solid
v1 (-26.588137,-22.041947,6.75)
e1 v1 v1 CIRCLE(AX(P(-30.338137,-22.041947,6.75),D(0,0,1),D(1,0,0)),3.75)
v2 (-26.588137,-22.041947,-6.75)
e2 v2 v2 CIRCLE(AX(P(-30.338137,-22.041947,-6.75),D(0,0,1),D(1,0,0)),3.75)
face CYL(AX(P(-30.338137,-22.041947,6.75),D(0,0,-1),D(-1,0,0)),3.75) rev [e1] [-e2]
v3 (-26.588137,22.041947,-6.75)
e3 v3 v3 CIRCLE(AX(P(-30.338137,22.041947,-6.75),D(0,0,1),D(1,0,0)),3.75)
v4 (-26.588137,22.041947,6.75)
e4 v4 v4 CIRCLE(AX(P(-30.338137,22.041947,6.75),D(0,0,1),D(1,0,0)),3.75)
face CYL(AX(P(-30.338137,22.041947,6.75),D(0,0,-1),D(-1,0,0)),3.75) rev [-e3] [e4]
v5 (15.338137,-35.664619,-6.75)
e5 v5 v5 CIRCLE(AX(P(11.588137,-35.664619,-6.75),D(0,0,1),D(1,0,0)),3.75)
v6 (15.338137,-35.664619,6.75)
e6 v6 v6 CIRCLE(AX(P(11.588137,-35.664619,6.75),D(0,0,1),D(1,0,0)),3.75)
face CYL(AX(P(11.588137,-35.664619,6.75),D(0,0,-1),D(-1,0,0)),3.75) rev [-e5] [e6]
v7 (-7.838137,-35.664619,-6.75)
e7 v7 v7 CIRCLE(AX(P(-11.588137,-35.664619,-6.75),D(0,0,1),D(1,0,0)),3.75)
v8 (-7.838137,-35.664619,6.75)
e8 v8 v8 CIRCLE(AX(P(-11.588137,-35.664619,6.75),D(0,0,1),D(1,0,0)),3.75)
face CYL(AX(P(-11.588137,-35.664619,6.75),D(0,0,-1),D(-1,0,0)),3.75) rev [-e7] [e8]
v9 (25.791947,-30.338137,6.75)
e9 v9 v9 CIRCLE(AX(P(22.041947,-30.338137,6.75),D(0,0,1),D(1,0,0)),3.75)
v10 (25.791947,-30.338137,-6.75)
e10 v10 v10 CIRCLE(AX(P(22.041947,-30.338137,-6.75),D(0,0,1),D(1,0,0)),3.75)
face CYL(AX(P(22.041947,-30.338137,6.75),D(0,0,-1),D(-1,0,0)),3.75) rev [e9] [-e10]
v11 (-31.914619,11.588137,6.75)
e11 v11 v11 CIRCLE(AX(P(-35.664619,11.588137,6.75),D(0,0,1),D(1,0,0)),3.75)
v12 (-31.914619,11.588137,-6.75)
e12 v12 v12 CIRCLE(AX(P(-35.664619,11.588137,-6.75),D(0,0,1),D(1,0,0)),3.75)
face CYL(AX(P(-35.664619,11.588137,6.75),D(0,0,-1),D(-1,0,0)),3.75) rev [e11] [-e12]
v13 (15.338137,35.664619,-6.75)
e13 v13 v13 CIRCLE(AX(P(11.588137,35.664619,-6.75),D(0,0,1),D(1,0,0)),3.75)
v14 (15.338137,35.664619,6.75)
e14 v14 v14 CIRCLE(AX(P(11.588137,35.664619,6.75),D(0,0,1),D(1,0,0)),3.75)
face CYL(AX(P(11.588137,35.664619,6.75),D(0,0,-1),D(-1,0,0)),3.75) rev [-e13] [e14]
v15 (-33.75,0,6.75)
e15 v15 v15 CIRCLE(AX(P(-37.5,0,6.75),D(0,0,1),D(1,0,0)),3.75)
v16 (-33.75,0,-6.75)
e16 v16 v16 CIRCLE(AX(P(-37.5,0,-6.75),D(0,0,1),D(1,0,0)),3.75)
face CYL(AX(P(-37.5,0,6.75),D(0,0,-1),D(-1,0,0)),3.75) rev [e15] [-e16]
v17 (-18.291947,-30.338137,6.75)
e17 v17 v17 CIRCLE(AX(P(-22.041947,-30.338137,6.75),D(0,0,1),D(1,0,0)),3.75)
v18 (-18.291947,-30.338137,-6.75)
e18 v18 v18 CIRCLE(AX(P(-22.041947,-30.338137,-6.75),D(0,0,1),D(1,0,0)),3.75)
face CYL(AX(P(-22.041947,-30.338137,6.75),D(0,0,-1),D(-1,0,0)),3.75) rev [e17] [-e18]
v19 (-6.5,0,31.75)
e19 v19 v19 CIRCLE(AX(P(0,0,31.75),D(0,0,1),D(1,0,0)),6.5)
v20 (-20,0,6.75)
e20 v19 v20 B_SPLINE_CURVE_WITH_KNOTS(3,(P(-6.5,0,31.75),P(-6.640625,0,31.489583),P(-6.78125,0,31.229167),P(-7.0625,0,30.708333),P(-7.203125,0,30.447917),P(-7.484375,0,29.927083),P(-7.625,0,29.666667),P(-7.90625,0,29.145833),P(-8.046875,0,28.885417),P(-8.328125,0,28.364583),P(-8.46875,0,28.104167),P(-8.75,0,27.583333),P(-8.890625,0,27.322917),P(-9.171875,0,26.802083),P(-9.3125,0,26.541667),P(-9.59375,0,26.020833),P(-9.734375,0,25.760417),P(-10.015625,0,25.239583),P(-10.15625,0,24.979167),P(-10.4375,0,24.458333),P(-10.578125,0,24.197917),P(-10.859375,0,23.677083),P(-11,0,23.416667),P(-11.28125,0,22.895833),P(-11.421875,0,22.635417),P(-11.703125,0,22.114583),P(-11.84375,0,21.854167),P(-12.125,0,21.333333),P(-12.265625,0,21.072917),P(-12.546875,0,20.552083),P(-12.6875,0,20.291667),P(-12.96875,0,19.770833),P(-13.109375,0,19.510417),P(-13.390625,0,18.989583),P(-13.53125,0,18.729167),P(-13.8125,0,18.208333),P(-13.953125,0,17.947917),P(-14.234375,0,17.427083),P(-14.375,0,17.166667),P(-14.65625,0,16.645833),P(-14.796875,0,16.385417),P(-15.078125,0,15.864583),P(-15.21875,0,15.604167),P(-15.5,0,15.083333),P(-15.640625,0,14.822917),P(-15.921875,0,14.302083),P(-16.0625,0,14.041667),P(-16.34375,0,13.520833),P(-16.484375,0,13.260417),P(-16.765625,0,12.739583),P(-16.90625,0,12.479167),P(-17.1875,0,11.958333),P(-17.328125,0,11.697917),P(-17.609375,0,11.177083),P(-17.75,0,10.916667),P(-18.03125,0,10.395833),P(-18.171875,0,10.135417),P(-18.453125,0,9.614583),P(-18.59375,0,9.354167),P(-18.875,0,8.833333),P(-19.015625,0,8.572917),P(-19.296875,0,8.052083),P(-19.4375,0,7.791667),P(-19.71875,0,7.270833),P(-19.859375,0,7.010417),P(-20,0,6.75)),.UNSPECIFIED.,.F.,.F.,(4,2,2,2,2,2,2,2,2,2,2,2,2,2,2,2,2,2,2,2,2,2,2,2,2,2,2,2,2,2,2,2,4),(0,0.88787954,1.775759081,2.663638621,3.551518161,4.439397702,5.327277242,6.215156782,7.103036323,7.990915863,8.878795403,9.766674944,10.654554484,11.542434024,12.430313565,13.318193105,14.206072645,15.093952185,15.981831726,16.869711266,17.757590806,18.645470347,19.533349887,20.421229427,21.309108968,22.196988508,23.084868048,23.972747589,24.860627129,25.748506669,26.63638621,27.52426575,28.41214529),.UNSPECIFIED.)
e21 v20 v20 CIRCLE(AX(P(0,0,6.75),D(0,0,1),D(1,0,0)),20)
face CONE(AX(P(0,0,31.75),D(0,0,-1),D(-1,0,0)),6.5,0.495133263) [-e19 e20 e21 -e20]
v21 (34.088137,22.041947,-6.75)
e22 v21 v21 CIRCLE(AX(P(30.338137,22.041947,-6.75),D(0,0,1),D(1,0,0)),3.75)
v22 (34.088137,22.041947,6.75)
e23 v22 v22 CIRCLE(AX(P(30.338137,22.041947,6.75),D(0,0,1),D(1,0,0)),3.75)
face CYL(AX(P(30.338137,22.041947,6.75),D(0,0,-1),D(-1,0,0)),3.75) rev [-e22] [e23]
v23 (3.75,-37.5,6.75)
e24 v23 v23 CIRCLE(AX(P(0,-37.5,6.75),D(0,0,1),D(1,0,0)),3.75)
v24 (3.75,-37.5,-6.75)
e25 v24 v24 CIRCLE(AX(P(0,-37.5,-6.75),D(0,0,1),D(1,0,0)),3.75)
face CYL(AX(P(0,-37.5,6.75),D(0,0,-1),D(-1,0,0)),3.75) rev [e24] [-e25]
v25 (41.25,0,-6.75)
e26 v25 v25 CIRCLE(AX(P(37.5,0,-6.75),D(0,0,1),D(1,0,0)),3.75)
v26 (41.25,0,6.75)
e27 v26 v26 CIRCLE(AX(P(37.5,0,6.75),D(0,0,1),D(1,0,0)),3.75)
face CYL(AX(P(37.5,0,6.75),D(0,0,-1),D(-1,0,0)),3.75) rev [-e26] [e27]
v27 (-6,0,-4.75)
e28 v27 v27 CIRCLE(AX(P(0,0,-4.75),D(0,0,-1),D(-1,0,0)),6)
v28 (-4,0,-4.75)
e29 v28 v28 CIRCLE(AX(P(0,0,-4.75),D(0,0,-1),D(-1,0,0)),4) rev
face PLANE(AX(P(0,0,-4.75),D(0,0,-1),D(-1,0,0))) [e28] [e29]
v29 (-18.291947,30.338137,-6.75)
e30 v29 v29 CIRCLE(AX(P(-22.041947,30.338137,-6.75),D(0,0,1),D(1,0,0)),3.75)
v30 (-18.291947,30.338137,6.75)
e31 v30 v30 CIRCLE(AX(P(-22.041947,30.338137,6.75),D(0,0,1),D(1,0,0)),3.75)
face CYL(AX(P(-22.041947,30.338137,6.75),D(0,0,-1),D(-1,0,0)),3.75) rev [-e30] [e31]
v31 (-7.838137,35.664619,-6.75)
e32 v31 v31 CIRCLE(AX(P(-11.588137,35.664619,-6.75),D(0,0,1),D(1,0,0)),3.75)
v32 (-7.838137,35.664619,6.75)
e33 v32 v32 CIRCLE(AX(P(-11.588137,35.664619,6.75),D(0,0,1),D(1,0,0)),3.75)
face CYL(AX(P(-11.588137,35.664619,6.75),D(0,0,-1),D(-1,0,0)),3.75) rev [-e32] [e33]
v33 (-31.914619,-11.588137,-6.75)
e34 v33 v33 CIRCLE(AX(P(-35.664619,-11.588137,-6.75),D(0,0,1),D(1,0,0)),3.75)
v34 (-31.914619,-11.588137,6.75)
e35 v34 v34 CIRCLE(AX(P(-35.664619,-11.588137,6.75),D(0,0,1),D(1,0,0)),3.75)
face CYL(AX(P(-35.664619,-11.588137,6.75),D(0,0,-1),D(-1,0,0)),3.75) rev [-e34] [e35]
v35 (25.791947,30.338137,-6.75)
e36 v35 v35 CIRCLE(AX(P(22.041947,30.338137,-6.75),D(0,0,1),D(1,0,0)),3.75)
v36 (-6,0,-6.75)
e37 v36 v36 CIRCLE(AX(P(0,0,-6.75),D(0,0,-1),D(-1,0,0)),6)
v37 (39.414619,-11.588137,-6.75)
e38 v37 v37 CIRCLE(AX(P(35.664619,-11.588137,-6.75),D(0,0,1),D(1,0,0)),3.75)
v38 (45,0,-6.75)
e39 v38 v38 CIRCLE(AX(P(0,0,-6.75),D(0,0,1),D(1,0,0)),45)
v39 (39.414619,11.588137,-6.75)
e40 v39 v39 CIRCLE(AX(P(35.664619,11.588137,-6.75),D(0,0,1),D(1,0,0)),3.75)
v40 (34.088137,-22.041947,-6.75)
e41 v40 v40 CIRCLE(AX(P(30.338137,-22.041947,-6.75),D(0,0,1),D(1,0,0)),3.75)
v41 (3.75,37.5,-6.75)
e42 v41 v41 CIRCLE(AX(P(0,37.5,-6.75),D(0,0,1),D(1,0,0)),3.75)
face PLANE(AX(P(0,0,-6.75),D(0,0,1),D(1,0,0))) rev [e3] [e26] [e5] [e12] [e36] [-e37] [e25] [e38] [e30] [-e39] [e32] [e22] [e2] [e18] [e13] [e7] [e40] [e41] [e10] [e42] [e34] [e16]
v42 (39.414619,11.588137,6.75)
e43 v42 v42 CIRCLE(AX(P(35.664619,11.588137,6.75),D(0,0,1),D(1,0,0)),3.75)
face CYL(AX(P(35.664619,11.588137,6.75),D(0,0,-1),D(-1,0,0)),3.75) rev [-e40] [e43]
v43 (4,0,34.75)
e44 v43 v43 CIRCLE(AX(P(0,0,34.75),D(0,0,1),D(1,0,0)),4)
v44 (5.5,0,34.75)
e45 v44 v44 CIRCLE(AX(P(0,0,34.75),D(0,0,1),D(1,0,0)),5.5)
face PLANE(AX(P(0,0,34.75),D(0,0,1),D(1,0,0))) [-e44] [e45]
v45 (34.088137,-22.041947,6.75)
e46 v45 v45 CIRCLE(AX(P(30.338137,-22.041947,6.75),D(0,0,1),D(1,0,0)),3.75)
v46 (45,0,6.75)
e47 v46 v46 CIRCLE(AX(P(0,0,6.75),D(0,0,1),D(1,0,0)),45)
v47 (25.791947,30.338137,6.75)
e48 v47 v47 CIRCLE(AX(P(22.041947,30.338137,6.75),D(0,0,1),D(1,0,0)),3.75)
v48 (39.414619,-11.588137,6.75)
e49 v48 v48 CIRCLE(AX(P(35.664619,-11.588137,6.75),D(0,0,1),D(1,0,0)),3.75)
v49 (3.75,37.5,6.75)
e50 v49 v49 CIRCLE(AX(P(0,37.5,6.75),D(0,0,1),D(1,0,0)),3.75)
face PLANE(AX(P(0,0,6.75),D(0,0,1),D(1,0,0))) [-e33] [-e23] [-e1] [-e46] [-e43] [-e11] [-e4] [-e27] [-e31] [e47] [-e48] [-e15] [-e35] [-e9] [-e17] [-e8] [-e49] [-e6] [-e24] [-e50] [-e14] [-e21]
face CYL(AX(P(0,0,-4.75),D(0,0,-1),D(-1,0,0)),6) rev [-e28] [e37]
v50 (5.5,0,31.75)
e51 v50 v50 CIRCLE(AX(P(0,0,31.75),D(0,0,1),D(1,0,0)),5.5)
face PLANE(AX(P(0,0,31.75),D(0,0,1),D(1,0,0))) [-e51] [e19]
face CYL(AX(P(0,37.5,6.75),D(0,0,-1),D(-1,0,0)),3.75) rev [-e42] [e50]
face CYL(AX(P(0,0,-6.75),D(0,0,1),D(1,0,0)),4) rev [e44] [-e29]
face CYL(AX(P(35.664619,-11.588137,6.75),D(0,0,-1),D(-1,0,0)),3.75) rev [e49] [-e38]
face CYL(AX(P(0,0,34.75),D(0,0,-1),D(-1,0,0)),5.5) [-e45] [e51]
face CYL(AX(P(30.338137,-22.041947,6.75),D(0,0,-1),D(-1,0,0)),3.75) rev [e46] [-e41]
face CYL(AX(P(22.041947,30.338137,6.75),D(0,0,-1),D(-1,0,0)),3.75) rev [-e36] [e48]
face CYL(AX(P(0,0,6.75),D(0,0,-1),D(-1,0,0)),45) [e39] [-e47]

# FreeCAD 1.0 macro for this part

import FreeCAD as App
import Part
import Sketcher
from FreeCAD import Vector

doc = App.newDocument("Part")
body = doc.addObject("PartDesign::Body", "Body")

# Sketch on XY plane
sketch1 = body.newObject("Sketcher::SketchObject", "Sketch")
sketch1.AttachmentSupport = (doc.getObject("XY_Plane"), [""])
sketch1.MapMode = "FlatFace"
sketch1.addGeometry([
    Part.Circle(Vector(0, 0, 0), Vector(0, 0, 1), 45),  # 0
    Part.Circle(Vector(-22, -30.3, 0), Vector(0, 0, 1), 3.8),  # 1
    Part.Circle(Vector(-30.3, -22, 0), Vector(0, 0, 1), 3.8),  # 2
    Part.Circle(Vector(-11.6, -35.7, 0), Vector(0, 0, 1), 3.8),  # 3
    Part.Circle(Vector(-35.7, -11.6, 0), Vector(0, 0, 1), 3.8),  # 4
    Part.Circle(Vector(0, -37.5, 0), Vector(0, 0, 1), 3.8),  # 5
    Part.Circle(Vector(11.6, -35.7, 0), Vector(0, 0, 1), 3.8),  # 6
    Part.Circle(Vector(22, -30.3, 0), Vector(0, 0, 1), 3.8),  # 7
    Part.Circle(Vector(30.3, -22, 0), Vector(0, 0, 1), 3.8),  # 8
    Part.Circle(Vector(35.7, -11.6, 0), Vector(0, 0, 1), 3.8),  # 9
    Part.Circle(Vector(-37.5, 0, 0), Vector(0, 0, 1), 3.8),  # 10
    Part.Circle(Vector(-35.7, 11.6, 0), Vector(0, 0, 1), 3.8),  # 11
    Part.Circle(Vector(-30.3, 22, 0), Vector(0, 0, 1), 3.8),  # 12
    Part.Circle(Vector(-22, 30.3, 0), Vector(0, 0, 1), 3.8),  # 13
    Part.Circle(Vector(-11.6, 35.7, 0), Vector(0, 0, 1), 3.8),  # 14
    Part.Circle(Vector(37.5, 0, 0), Vector(0, 0, 1), 3.8),  # 15
    Part.Circle(Vector(35.7, 11.6, 0), Vector(0, 0, 1), 3.8),  # 16
    Part.Circle(Vector(0, 37.5, 0), Vector(0, 0, 1), 3.8),  # 17
    Part.Circle(Vector(11.6, 35.7, 0), Vector(0, 0, 1), 3.8),  # 18
    Part.Circle(Vector(30.3, 22, 0), Vector(0, 0, 1), 3.8),  # 19
    Part.Circle(Vector(22, 30.3, 0), Vector(0, 0, 1), 3.8),  # 20
], False)
sketch1.addConstraint([
    Sketcher.Constraint("Coincident", 0, 3, -1, 1),
    Sketcher.Constraint("Equal", 1, 2),
    Sketcher.Constraint("Equal", 2, 3),
    Sketcher.Constraint("Equal", 3, 4),
    Sketcher.Constraint("Equal", 4, 5),
    Sketcher.Constraint("Equal", 5, 6),
    Sketcher.Constraint("Equal", 6, 7),
    Sketcher.Constraint("Equal", 7, 8),
    Sketcher.Constraint("Equal", 8, 9),
    Sketcher.Constraint("Equal", 9, 10),
    Sketcher.Constraint("Equal", 10, 11),
    Sketcher.Constraint("Equal", 11, 12),
    Sketcher.Constraint("Equal", 12, 13),
    Sketcher.Constraint("Equal", 13, 14),
    Sketcher.Constraint("Equal", 14, 15),
    Sketcher.Constraint("Equal", 15, 16),
    Sketcher.Constraint("Equal", 16, 17),
    Sketcher.Constraint("Equal", 17, 18),
    Sketcher.Constraint("Equal", 18, 19),
    Sketcher.Constraint("Equal", 19, 20),
    Sketcher.Constraint("Symmetric", 9, 3, 11, 3, -1, 1),
    Sketcher.Constraint("Symmetric", 8, 3, 12, 3, -1, 1),
    Sketcher.Constraint("Symmetric", 7, 3, 13, 3, -1, 1),
    Sketcher.Constraint("Symmetric", 6, 3, 14, 3, -1, 1),
    Sketcher.Constraint("Symmetric", 10, 3, 15, 3, -1, 1),
    Sketcher.Constraint("Symmetric", 4, 3, 16, 3, -1, 1),
    Sketcher.Constraint("Symmetric", 5, 3, 17, 3, -1, 1),
    Sketcher.Constraint("Symmetric", 3, 3, 18, 3, -1, 1),
    Sketcher.Constraint("Symmetric", 2, 3, 19, 3, -1, 1),
    Sketcher.Constraint("Symmetric", 1, 3, 20, 3, -1, 1),
    Sketcher.Constraint("Symmetric", 3, 3, 6, 3, -2),
    Sketcher.Constraint("Symmetric", 1, 3, 7, 3, -2),
    Sketcher.Constraint("Symmetric", 2, 3, 8, 3, -2),
    Sketcher.Constraint("Symmetric", 4, 3, 9, 3, -2),
    Sketcher.Constraint("PointOnObject", 5, 3, -2),
    Sketcher.Constraint("PointOnObject", 10, 3, -1),
    Sketcher.Constraint("Diameter", 0, 90.0),
    Sketcher.Constraint("Diameter", 1, 7.5),
    Sketcher.Constraint("DistanceY", 5, 3, -1, 1, 37.5),
    Sketcher.Constraint("DistanceX", 10, 3, -1, 1, 37.5),
    Sketcher.Constraint("DistanceX", 2, 3, 3, 3, 18.75),
    Sketcher.Constraint("DistanceY", 1, 3, 4, 3, 18.75),
    Sketcher.Constraint("DistanceY", 3, 3, -1, 1, 35.664619),
    Sketcher.Constraint("DistanceX", 4, 3, -1, 1, 35.664619),
    Sketcher.Constraint("DistanceX", 2, 3, 1, 3, 8.29619),
    Sketcher.Constraint("DistanceY", 1, 3, 2, 3, 8.29619),
    Sketcher.Constraint("DistanceX", 1, 3, -1, 1, 22.041947),
    Sketcher.Constraint("DistanceY", 1, 3, -1, 1, 30.338137),
])
pad1 = body.newObject("PartDesign::Pad", "Pad")
pad1.Profile = sketch1
pad1.Length = 13.5
pad1.Midplane = True

# Sketch on XY plane
sketch2 = body.newObject("Sketcher::SketchObject", "Sketch001")
sketch2.AttachmentSupport = (doc.getObject("XY_Plane"), [""])
sketch2.MapMode = "FlatFace"
sketch2.AttachmentOffset = App.Placement(Vector(0, 0, 31.75), App.Rotation())
sketch2.addGeometry(Part.Circle(Vector(0, 0, 0), Vector(0, 0, 1), 6), False)
sketch2.addConstraint([
    Sketcher.Constraint("Coincident", 0, 3, -1, 1),
    Sketcher.Constraint("Diameter", 0, 13.0),
])

# Sketch on XY plane
sketch3 = body.newObject("Sketcher::SketchObject", "Sketch002")
sketch3.AttachmentSupport = (doc.getObject("XY_Plane"), [""])
sketch3.MapMode = "FlatFace"
sketch3.AttachmentOffset = App.Placement(Vector(0, 0, 6.75), App.Rotation())
sketch3.addGeometry(Part.Circle(Vector(0, 0, 0), Vector(0, 0, 1), 20), False)
sketch3.addConstraint([
    Sketcher.Constraint("Coincident", 0, 3, -1, 1),
    Sketcher.Constraint("Diameter", 0, 40.0),
])

additiveloft = body.newObject("PartDesign::AdditiveLoft", "AdditiveLoft")
additiveloft.Profile = sketch2
additiveloft.Sections = [sketch3]

# Sketch on XY plane
sketch4 = body.newObject("Sketcher::SketchObject", "Sketch003")
sketch4.AttachmentSupport = (doc.getObject("XY_Plane"), [""])
sketch4.MapMode = "FlatFace"
sketch4.AttachmentOffset = App.Placement(Vector(0, 0, 31.75), App.Rotation())
sketch4.addGeometry(Part.Circle(Vector(0, 0, 0), Vector(0, 0, 1), 6), False)
sketch4.addConstraint([
    Sketcher.Constraint("Coincident", 0, 3, -1, 1),
    Sketcher.Constraint("Diameter", 0, 11.0),
])
pad2 = body.newObject("PartDesign::Pad", "Pad001")
pad2.Profile = sketch4
pad2.Length = 3

# Sketch on XY plane
sketch5 = body.newObject("Sketcher::SketchObject", "Sketch004")
sketch5.AttachmentSupport = (doc.getObject("XY_Plane"), [""])
sketch5.MapMode = "FlatFace"
sketch5.AttachmentOffset = App.Placement(Vector(0, 0, 34.75), App.Rotation())
sketch5.addGeometry(Part.Circle(Vector(0, 0, 0), Vector(0, 0, 1), 4), False)
sketch5.addConstraint([
    Sketcher.Constraint("Coincident", 0, 3, -1, 1),
    Sketcher.Constraint("Diameter", 0, 8.0),
])
pocket1 = body.newObject("PartDesign::Pocket", "Pocket")
pocket1.Profile = sketch5
pocket1.Type = "ThroughAll"

# Sketch on XY plane
sketch6 = body.newObject("Sketcher::SketchObject", "Sketch005")
sketch6.AttachmentSupport = (doc.getObject("XY_Plane"), [""])
sketch6.MapMode = "FlatFace"
sketch6.AttachmentOffset = App.Placement(Vector(0, 0, -6.75), App.Rotation())
sketch6.addGeometry(Part.Circle(Vector(0, 0, 0), Vector(0, 0, 1), 6), False)
sketch6.addConstraint([
    Sketcher.Constraint("Coincident", 0, 3, -1, 1),
    Sketcher.Constraint("Diameter", 0, 12.0),
])
pocket2 = body.newObject("PartDesign::Pocket", "Pocket001")
pocket2.Profile = sketch6
pocket2.Length = 2
pocket2.Reversed = True

doc.recompute()
